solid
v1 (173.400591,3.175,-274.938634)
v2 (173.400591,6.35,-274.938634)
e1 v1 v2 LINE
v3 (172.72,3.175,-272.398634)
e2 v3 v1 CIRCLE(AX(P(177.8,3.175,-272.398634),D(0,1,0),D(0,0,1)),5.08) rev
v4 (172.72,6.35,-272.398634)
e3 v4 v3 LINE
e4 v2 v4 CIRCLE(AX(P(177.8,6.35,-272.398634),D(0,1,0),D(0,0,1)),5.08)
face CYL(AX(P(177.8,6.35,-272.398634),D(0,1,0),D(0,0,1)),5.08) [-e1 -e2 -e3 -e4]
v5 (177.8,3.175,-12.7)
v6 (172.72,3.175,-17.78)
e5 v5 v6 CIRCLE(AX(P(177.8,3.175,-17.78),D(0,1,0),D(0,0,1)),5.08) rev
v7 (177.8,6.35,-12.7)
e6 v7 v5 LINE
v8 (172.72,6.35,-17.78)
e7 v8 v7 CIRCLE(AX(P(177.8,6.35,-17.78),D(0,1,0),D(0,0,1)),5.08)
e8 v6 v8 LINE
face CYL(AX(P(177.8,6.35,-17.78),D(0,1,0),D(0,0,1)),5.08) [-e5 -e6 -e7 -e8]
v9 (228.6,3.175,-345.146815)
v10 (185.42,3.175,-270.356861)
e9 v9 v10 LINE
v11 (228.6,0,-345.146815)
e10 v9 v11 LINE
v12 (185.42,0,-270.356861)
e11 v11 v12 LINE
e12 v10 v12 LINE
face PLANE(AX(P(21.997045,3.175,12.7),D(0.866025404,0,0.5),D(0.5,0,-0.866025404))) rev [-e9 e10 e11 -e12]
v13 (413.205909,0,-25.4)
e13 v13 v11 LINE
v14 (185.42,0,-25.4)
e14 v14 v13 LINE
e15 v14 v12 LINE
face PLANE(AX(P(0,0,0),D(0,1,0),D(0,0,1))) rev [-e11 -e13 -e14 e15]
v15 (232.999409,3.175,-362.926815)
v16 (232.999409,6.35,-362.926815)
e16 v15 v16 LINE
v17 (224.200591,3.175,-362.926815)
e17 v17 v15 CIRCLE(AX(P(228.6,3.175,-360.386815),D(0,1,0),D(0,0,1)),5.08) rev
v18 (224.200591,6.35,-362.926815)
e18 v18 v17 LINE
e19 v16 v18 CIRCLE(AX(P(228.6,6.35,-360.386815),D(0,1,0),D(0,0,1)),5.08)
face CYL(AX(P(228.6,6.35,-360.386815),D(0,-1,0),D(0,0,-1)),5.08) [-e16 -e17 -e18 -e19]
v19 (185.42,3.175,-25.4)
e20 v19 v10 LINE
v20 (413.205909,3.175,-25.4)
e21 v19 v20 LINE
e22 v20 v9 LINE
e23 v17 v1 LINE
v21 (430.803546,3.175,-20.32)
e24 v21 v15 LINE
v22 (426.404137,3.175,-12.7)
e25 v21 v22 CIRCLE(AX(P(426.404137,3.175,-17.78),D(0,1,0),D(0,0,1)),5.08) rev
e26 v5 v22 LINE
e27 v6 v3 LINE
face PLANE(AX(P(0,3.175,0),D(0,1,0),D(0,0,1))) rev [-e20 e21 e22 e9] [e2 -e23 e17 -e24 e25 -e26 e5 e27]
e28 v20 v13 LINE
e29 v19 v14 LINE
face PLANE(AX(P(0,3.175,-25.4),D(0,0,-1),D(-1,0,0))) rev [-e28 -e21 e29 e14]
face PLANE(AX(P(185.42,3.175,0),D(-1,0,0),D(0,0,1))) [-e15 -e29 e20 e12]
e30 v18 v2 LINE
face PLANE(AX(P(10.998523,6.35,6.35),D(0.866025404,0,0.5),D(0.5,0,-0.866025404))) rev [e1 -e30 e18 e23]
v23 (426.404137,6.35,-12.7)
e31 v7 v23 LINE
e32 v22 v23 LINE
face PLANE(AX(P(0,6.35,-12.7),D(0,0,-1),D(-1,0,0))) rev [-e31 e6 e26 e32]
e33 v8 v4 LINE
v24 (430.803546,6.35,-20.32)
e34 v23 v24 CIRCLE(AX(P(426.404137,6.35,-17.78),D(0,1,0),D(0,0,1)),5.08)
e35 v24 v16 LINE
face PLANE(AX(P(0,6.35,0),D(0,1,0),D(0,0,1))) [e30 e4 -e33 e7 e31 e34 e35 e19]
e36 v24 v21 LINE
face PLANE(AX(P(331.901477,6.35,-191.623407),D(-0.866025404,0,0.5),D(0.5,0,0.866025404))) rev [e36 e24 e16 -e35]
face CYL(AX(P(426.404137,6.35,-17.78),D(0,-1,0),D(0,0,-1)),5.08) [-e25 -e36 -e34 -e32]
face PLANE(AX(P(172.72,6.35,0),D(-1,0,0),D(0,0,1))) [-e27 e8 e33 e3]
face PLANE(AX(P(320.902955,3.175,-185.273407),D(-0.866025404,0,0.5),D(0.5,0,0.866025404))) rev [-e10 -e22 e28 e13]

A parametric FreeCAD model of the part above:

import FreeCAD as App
import Part
import Sketcher
from FreeCAD import Vector
Q = App.Units.Quantity


def edges_at(feature, points):
    """Names of the edges that pass closest to the given points."""
    edges = feature.Shape.Edges
    near = lambda p: min(range(len(edges)), key=lambda i: edges[i].distToShape(Part.Vertex(*p))[0])
    return sorted({f"Edge{near(p) + 1}" for p in points})


def add_polygon(sketch, points):
    """Adds a closed chain of lines whose ends are joined by coincident constraints."""
    first, n = sketch.GeometryCount, len(points)
    for a, b in zip(points, points[1:] + points[:1]):
        sketch.addGeometry(Part.LineSegment(App.Vector(*a, 0), App.Vector(*b, 0)), False)
    for i in range(n):
        sketch.addConstraint(Sketcher.Constraint("Coincident", first + i, 2, first + (i + 1) % n, 1))

doc = App.newDocument("Part")
params = doc.addObject("Spreadsheet::Sheet", "Params")
for row, (alias, value) in enumerate([
    ("sketch1_length", "4.4 in"),
    ("pad1_length", "0.25 in"),
    ("sketch2_length", "4.4 in"),
    ("sketch2_length2", "3.4 in"),
    ("pocket1_length", "0.125 in"),
    ("fillet_radius", "0.2 in"),
], start=1):
    params.set(f"A{row}", alias)
    params.set(f"B{row}", "=" + value)
    params.setAlias(f"B{row}", alias)

body = doc.addObject("PartDesign::Body", "Body")

sketch1 = doc.addObject("Sketcher::SketchObject", "Sketch")
body.addObject(sketch1)
sketch1.AttachmentSupport = (doc.XZ_Plane, [""])
sketch1.MapMode = "FlatFace"
add_polygon(sketch1, [(173, -274), (173, -13), (435, -13), (229, -371)])
sketch1.addConstraint(Sketcher.Constraint("Vertical", 0))
sketch1.addConstraint(Sketcher.Constraint("Horizontal", 1))
sketch1.addConstraint(Sketcher.Constraint("DistanceX", -1, 1, 2, 2, Q("9 in")))
sketch1.addConstraint(Sketcher.Constraint("Angle", 2, Q("-120 deg")))
sketch1.addConstraint(Sketcher.Constraint("Angle", 3, Q("120 deg")))
sketch1.addConstraint(Sketcher.Constraint("Distance", 3, Q("4.4 in")))
sketch1.addConstraint(Sketcher.Constraint("DistanceY", 0, 2, -1, 1, Q("0.5 in")))
sketch1.addConstraint(Sketcher.Constraint("Distance", 2, Q("413.205909 mm")))
sketch1.setExpression("Constraints[9]", "Params.sketch1_length")
pad1 = doc.addObject("PartDesign::Pad", "Pad")
body.addObject(pad1)
pad1.Profile = sketch1
pad1.setExpression("Length", "Params.pad1_length")
pad1.Reversed = True

sketch2 = doc.addObject("Sketcher::SketchObject", "Sketch001")
body.addObject(sketch2)
sketch2.AttachmentSupport = (doc.XZ_Plane, [""])
sketch2.MapMode = "FlatFace"
add_polygon(sketch2, [(173, -274), (173, -13), (435, -13), (229, -371)])
add_polygon(sketch2, [(185, -25), (185, -270), (229, -345), (413, -25)])
sketch2.addConstraint(Sketcher.Constraint("Vertical", 0))
sketch2.addConstraint(Sketcher.Constraint("Horizontal", 1))
sketch2.addConstraint(Sketcher.Constraint("Vertical", 4))
sketch2.addConstraint(Sketcher.Constraint("Horizontal", 7))
sketch2.addConstraint(Sketcher.Constraint("Parallel", 3, 5))
sketch2.addConstraint(Sketcher.Constraint("Parallel", 2, 6))
sketch2.addConstraint(Sketcher.Constraint("Vertical", 2, 2, 5, 2))
sketch2.addConstraint(Sketcher.Constraint("DistanceX", -1, 1, 2, 2, Q("9 in")))
sketch2.addConstraint(Sketcher.Constraint("DistanceY", 6, 2, -1, 1, Q("1 in")))
sketch2.addConstraint(Sketcher.Constraint("Angle", 2, Q("-120 deg")))
sketch2.addConstraint(Sketcher.Constraint("Angle", 3, Q("120 deg")))
sketch2.addConstraint(Sketcher.Constraint("DistanceY", 2, 2, 5, 2, Q("1 in")))
sketch2.addConstraint(Sketcher.Constraint("Distance", 3, Q("4.4 in")))
sketch2.addConstraint(Sketcher.Constraint("Distance", 5, Q("3.4 in")))
sketch2.addConstraint(Sketcher.Constraint("DistanceY", 0, 2, -1, 1, Q("0.5 in")))
sketch2.addConstraint(Sketcher.Constraint("DistanceX", 7, 2, 7, 1, Q("227.785909 mm")))
sketch2.setExpression("Constraints[20]", "Params.sketch2_length")
sketch2.setExpression("Constraints[21]", "Params.sketch2_length2")
pocket1 = doc.addObject("PartDesign::Pocket", "Pocket")
body.addObject(pocket1)
pocket1.Profile = sketch2
pocket1.setExpression("Length", "Params.pocket1_length")
doc.recompute()

fillet = doc.addObject("PartDesign::Fillet", "Fillet")
body.addObject(fillet)
fillet.Base = (pocket1, edges_at(pocket1, [
    (172.72, 4.763, -273.76),
    (228.6, 4.763, -370.547),
    (435.203, 4.763, -12.7),
    (172.72, 4.763, -12.7),
]))
fillet.setExpression("Radius", "Params.fillet_radius")

doc.recompute()
